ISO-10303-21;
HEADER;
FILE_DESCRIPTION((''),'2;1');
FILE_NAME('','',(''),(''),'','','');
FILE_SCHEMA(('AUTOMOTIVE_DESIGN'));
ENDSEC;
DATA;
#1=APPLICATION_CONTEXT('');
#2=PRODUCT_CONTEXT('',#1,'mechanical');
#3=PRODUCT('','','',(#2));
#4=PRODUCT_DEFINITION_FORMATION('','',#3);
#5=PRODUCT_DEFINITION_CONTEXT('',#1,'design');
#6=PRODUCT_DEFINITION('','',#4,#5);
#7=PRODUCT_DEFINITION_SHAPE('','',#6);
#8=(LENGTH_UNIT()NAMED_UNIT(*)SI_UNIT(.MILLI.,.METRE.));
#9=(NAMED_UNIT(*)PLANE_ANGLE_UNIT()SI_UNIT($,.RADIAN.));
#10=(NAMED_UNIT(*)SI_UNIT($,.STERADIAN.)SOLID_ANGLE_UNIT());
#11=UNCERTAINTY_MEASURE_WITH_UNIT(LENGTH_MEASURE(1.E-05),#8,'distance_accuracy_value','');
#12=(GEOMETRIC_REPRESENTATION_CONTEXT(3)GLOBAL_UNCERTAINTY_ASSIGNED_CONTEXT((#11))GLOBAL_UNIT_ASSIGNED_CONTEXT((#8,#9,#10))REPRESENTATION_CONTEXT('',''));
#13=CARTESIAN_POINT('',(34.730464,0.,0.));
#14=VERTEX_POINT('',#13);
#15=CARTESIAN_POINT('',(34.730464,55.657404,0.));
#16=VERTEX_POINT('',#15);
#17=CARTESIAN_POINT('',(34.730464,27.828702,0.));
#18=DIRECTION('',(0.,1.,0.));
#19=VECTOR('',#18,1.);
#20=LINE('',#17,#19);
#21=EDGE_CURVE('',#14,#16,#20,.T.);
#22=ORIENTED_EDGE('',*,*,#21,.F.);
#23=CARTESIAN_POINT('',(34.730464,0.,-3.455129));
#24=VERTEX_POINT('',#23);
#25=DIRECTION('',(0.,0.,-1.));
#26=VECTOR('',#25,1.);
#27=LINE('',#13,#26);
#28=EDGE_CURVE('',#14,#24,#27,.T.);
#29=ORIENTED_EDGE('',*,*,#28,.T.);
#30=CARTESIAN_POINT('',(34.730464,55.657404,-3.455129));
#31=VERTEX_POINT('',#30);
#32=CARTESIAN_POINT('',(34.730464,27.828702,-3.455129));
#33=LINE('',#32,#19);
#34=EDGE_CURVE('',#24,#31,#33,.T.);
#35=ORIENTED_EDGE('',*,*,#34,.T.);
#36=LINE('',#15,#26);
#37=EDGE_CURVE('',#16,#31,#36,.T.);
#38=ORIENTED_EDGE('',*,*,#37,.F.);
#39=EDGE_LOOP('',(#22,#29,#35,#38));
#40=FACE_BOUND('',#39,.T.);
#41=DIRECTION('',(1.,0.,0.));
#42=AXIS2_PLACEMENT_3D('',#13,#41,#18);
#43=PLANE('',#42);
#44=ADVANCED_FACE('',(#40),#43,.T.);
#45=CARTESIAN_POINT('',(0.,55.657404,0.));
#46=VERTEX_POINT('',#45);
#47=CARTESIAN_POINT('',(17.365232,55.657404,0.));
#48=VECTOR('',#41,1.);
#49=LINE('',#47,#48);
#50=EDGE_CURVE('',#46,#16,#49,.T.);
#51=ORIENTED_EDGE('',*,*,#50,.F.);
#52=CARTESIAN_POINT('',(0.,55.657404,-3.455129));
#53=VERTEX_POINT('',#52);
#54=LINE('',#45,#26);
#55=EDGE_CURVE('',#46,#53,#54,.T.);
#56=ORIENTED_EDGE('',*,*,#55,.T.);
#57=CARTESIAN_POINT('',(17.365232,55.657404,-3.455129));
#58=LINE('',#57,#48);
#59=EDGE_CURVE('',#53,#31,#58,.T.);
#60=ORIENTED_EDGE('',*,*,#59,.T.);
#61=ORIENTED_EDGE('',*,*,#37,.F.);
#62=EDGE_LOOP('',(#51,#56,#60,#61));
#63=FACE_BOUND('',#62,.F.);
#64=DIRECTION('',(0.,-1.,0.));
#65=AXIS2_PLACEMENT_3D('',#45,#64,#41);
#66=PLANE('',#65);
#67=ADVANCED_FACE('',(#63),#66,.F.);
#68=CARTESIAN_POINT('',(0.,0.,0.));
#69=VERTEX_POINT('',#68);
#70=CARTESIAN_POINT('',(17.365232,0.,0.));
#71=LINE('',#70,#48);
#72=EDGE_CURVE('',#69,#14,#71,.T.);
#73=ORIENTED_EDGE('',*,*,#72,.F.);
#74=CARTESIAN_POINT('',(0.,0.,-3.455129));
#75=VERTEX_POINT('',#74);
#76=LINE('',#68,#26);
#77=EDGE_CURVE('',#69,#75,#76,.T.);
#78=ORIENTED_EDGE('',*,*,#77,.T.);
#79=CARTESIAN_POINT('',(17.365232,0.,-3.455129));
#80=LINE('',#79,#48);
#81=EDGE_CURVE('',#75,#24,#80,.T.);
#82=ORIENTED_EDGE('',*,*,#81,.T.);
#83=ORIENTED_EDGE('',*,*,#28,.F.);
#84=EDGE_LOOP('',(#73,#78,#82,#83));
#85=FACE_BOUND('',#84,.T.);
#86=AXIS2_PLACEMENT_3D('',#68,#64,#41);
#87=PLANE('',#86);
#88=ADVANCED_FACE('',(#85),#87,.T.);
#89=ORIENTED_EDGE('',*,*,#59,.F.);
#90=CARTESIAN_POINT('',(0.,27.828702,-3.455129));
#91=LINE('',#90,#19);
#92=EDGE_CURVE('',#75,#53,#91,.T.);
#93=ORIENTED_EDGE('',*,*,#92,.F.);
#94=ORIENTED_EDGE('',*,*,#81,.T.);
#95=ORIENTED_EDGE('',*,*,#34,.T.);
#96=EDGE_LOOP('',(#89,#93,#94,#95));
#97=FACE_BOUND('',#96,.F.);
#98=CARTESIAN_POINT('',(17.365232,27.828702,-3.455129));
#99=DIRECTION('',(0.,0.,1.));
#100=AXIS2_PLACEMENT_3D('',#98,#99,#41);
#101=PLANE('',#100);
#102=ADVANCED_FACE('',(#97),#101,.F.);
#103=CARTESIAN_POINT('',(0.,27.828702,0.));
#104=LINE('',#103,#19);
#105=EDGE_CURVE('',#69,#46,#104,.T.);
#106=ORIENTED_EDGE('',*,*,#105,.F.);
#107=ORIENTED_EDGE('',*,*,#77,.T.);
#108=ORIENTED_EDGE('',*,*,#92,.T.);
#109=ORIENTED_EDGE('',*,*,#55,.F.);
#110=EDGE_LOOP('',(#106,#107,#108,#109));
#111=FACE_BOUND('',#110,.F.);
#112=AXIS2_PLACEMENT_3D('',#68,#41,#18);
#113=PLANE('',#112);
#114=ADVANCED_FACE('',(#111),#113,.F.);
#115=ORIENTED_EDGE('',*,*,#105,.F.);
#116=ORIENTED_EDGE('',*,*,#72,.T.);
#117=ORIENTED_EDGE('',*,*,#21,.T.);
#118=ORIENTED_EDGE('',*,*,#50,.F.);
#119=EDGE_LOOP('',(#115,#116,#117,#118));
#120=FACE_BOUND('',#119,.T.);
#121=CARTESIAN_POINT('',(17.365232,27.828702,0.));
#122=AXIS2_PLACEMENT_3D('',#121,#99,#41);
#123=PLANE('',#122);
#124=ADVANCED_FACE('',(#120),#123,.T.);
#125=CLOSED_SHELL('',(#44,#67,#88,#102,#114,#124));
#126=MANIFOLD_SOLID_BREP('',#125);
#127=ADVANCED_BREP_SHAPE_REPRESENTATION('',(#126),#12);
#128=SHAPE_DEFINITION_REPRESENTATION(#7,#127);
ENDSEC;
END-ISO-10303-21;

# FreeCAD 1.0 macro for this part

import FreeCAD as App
import Part
import Sketcher
Q = App.Units.Quantity

doc = App.newDocument("Part")
body = doc.addObject("PartDesign::Body", "Body")

# Sketch on XY plane
sketch1 = doc.addObject("Sketcher::SketchObject", "Sketch")
body.addObject(sketch1)
sketch1.AttachmentSupport = (doc.XY_Plane, [""])
sketch1.MapMode = "FlatFace"
sketch1.addGeometry([
    Part.LineSegment(App.Vector(0, 55.657404, 0), App.Vector(0, 0, 0)),
    Part.LineSegment(App.Vector(0, 0, 0), App.Vector(34.730464, 0, 0)),
    Part.LineSegment(App.Vector(34.730464, 0, 0), App.Vector(34.730464, 55.657404, 0)),
    Part.LineSegment(App.Vector(34.730464, 55.657404, 0), App.Vector(0, 55.657404, 0)),
], False)
sketch1.addConstraint([
    Sketcher.Constraint("Coincident", 0, 2, 1, 1),
    Sketcher.Constraint("Coincident", 1, 2, 2, 1),
    Sketcher.Constraint("Coincident", 2, 2, 3, 1),
    Sketcher.Constraint("Coincident", 3, 2, 0, 1),
    Sketcher.Constraint("Vertical", 0),
    Sketcher.Constraint("Horizontal", 1),
    Sketcher.Constraint("Vertical", 2),
    Sketcher.Constraint("Horizontal", 3),
    Sketcher.Constraint("Coincident", 0, 2, -1, 1),
    Sketcher.Constraint("DistanceX", 1, 1, 1, 2, Q("34.730464 mm")),
    Sketcher.Constraint("DistanceY", 0, 2, 0, 1, Q("55.657405 mm")),
])
pad1 = doc.addObject("PartDesign::Pad", "Pad")
body.addObject(pad1)
pad1.Profile = sketch1
pad1.Length = 3.455129
pad1.Reversed = True

# Sketch on XY plane
sketch2 = doc.addObject("Sketcher::SketchObject", "Sketch001")
body.addObject(sketch2)
sketch2.AttachmentSupport = (doc.XY_Plane, [""])
sketch2.MapMode = "FlatFace"
sketch2.addGeometry([
    Part.LineSegment(App.Vector(2.794297, 53.489607, 0), App.Vector(2.794297, 39.322435, 0)),
    Part.LineSegment(App.Vector(2.794297, 39.322435, 0), App.Vector(32.424374, 39.322435, 0)),
    Part.LineSegment(App.Vector(32.424374, 39.322435, 0), App.Vector(32.424374, 53.489607, 0)),
    Part.LineSegment(App.Vector(32.424374, 53.489607, 0), App.Vector(2.794297, 53.489607, 0)),
], False)
sketch2.addConstraint([
    Sketcher.Constraint("Coincident", 0, 2, 1, 1),
    Sketcher.Constraint("Coincident", 1, 2, 2, 1),
    Sketcher.Constraint("Coincident", 2, 2, 3, 1),
    Sketcher.Constraint("Coincident", 3, 2, 0, 1),
    Sketcher.Constraint("Vertical", 0),
    Sketcher.Constraint("Horizontal", 1),
    Sketcher.Constraint("Vertical", 2),
    Sketcher.Constraint("Horizontal", 3),
    Sketcher.Constraint("DistanceY", 0, 2, 0, 1, Q("14.167171 mm")),
    Sketcher.Constraint("DistanceX", 1, 1, 1, 2, Q("29.630077 mm")),
    Sketcher.Constraint("DistanceX", -1, 1, 0, 2, Q("2.794297 mm")),
    Sketcher.Constraint("DistanceY", -1, 1, 0, 2, Q("39.322435 mm")),
])
pad2 = doc.addObject("PartDesign::Pad", "Pad001")
body.addObject(pad2)
pad2.Profile = sketch2
pad2.Length = 0.495501
pad2.Reversed = True

doc.recompute()
